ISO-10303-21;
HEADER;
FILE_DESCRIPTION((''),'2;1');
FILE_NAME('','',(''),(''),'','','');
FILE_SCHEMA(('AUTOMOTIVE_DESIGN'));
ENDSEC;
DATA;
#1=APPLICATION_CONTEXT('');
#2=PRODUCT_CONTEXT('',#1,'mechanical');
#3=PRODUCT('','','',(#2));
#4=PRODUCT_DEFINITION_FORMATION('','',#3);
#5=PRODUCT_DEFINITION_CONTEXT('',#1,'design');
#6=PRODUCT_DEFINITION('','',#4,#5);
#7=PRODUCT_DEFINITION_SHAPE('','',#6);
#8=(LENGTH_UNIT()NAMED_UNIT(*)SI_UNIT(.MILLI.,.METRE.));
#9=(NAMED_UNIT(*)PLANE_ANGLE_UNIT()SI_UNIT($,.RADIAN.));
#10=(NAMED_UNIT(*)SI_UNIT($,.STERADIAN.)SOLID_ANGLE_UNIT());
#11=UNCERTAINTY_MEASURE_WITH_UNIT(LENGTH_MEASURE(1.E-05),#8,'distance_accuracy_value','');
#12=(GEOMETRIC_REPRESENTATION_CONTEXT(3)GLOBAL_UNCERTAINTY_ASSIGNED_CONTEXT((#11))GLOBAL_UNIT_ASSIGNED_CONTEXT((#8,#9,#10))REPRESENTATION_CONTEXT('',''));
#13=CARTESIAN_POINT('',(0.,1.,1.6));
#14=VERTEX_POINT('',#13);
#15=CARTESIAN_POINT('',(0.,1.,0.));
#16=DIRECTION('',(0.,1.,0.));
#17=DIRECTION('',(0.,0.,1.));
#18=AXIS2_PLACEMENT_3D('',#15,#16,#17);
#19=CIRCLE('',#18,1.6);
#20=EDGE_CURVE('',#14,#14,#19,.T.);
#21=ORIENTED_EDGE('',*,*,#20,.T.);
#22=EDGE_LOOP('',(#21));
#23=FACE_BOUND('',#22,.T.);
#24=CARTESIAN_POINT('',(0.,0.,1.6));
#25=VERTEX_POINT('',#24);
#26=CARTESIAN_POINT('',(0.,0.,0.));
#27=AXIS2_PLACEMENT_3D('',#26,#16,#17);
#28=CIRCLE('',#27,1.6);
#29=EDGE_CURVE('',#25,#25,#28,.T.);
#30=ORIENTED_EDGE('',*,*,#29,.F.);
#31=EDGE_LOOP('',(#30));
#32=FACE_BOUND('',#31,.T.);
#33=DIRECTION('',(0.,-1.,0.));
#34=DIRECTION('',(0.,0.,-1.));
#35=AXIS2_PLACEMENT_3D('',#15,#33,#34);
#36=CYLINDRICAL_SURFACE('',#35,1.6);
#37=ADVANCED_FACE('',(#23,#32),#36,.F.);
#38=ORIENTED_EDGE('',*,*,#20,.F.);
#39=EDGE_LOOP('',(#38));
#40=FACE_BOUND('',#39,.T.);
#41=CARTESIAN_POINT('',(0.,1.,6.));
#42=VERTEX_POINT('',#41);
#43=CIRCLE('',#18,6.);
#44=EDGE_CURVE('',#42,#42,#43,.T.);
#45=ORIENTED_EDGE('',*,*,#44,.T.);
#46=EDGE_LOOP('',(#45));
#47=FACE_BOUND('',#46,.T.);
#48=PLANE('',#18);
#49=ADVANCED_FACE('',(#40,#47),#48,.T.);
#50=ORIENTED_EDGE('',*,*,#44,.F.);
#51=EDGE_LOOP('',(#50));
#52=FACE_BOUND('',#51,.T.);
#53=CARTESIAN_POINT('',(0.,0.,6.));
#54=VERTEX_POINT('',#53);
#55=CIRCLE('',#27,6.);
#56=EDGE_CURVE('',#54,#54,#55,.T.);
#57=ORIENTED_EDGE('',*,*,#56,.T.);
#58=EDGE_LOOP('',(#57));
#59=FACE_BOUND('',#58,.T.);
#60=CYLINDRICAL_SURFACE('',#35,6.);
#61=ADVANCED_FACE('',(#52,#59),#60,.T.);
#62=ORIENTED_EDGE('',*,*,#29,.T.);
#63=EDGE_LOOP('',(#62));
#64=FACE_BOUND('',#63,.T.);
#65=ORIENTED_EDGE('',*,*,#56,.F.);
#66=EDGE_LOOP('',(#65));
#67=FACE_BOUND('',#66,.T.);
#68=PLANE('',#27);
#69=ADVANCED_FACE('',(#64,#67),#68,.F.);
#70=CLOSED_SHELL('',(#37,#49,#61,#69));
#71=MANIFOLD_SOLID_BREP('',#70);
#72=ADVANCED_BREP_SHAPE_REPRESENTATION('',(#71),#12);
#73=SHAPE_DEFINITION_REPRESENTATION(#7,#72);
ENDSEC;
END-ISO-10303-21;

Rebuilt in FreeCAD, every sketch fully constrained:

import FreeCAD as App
import Part
import Sketcher

doc = App.newDocument("Part")
params = doc.addObject("Spreadsheet::Sheet", "Params")
for row, (alias, value) in enumerate([
    ("sketch1_diameter", "12 mm"),
    ("sketch1_diameter2", "3.2 mm"),
    ("pad1_length", "1 mm"),
], start=1):
    params.set(f"A{row}", alias)
    params.set(f"B{row}", "=" + value)
    params.setAlias(f"B{row}", alias)

body = doc.addObject("PartDesign::Body", "Body")

# Sketch on XZ plane
sketch1 = body.newObject("Sketcher::SketchObject", "Sketch")
sketch1.AttachmentSupport = (doc.getObject("XZ_Plane"), [""])
sketch1.MapMode = "FlatFace"
sketch1.addGeometry([
    Part.Circle(App.Vector(0, 0, 0), App.Vector(0, 0, 1), 6),
    Part.Circle(App.Vector(0, 0, 0), App.Vector(0, 0, 1), 1.6),
], False)
sketch1.addConstraint([
    Sketcher.Constraint("Coincident", 0, 3, -1, 1),
    Sketcher.Constraint("Coincident", 1, 3, -1, 1),
    Sketcher.Constraint("Diameter", 0, 12.0),
    Sketcher.Constraint("Diameter", 1, 3.2),
])
sketch1.setExpression("Constraints[2]", "Params.sketch1_diameter")
sketch1.setExpression("Constraints[3]", "Params.sketch1_diameter2")
pad1 = body.newObject("PartDesign::Pad", "Pad")
pad1.Profile = sketch1
pad1.setExpression("Length", "Params.pad1_length")
pad1.Reversed = True

doc.recompute()
